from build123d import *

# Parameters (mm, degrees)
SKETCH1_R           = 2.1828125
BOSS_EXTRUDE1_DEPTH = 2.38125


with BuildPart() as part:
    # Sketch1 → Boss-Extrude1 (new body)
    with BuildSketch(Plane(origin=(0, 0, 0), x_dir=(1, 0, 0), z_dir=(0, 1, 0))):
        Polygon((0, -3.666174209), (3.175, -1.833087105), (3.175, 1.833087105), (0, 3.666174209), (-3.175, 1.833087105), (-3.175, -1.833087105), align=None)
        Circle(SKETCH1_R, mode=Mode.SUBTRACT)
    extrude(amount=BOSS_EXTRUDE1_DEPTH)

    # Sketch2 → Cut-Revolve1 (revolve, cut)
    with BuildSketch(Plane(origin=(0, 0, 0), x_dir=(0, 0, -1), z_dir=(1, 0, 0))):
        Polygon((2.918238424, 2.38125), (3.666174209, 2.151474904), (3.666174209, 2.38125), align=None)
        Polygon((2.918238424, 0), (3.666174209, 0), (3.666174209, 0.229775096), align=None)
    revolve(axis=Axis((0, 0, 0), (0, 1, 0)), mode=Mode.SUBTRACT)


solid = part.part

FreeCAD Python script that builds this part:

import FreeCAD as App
import Part
import Sketcher
Q = App.Units.Quantity


def add_polygon(sketch, points):
    """Adds a closed chain of lines whose ends are joined by coincident constraints."""
    first, n = sketch.GeometryCount, len(points)
    for a, b in zip(points, points[1:] + points[:1]):
        sketch.addGeometry(Part.LineSegment(App.Vector(*a, 0), App.Vector(*b, 0)), False)
    for i in range(n):
        sketch.addConstraint(Sketcher.Constraint("Coincident", first + i, 2, first + (i + 1) % n, 1))

doc = App.newDocument("Part")
params = doc.addObject("Spreadsheet::Sheet", "Params")
for row, (alias, value) in enumerate([
    ("sketch1_diameter", "0.171875 in"),
    ("pad1_length", "0.09375 in"),
    ("groove_angle", "360 deg"),
], start=1):
    params.set(f"A{row}", alias)
    params.set(f"B{row}", "=" + value)
    params.setAlias(f"B{row}", alias)

body = doc.addObject("PartDesign::Body", "Body")

sketch1 = doc.addObject("Sketcher::SketchObject", "Sketch")
body.addObject(sketch1)
sketch1.AttachmentSupport = (doc.XZ_Plane, [""])
sketch1.MapMode = "FlatFace"
add_polygon(sketch1, [(0, 3.666174), (3.175, 1.833087), (3.175, -1.833087), (0, -3.666174), (-3.175, -1.833087), (-3.175, 1.833087)])
sketch1.addGeometry(Part.Circle(App.Vector(0, 0, 0), App.Vector(0, 0, 1), 2.182812), False)
sketch1.addConstraint(Sketcher.Constraint("Vertical", 1))
sketch1.addConstraint(Sketcher.Constraint("Vertical", 4))
sketch1.addConstraint(Sketcher.Constraint("Coincident", 6, 3, -1, 1))
sketch1.addConstraint(Sketcher.Constraint("Symmetric", 0, 2, 3, 2, -1, 1))
sketch1.addConstraint(Sketcher.Constraint("Symmetric", 2, 2, 5, 2, -1, 1))
sketch1.addConstraint(Sketcher.Constraint("PointOnObject", 2, 2, -2))
sketch1.addConstraint(Sketcher.Constraint("Parallel", 2, 5))
sketch1.addConstraint(Sketcher.Constraint("Horizontal", 1, 2, 3, 2))
sketch1.addConstraint(Sketcher.Constraint("Diameter", 6, Q("0.171875 in")))
sketch1.addConstraint(Sketcher.Constraint("Angle", 0, Q("-30 deg")))
sketch1.addConstraint(Sketcher.Constraint("DistanceX", 3, 2, 1, 2, Q("0.25 in")))
sketch1.addConstraint(Sketcher.Constraint("DistanceY", 1, 2, 1, 1, Q("3.666174 mm")))
sketch1.setExpression("Constraints[14]", "Params.sketch1_diameter")
pad1 = doc.addObject("PartDesign::Pad", "Pad")
body.addObject(pad1)
pad1.Profile = sketch1
pad1.setExpression("Length", "Params.pad1_length")
pad1.Reversed = True

sketch2 = doc.addObject("Sketcher::SketchObject", "Sketch001")
body.addObject(sketch2)
sketch2.AttachmentSupport = (doc.YZ_Plane, [""])
sketch2.MapMode = "FlatFace"
add_polygon(sketch2, [(2.38125, -2.918238), (2.151475, -3.666174), (2.38125, -3.666174)])
add_polygon(sketch2, [(0, -2.918238), (0, -3.666174), (0.229775, -3.666174)])
sketch2.addConstraint(Sketcher.Constraint("Horizontal", 1))
sketch2.addConstraint(Sketcher.Constraint("Vertical", 2))
sketch2.addConstraint(Sketcher.Constraint("Vertical", 3))
sketch2.addConstraint(Sketcher.Constraint("Horizontal", 4))
sketch2.addConstraint(Sketcher.Constraint("PointOnObject", 3, 2, -2))
sketch2.addConstraint(Sketcher.Constraint("Horizontal", 1, 2, 3, 2))
sketch2.addConstraint(Sketcher.Constraint("Horizontal", 2, 2, 5, 2))
sketch2.addConstraint(Sketcher.Constraint("Equal", 1, 4))
sketch2.addConstraint(Sketcher.Constraint("DistanceX", -1, 1, 1, 2, Q("0.09375 in")))
sketch2.addConstraint(Sketcher.Constraint("DistanceX", 4, 2, 0, 2, Q("1.9217 mm")))
sketch2.addConstraint(Sketcher.Constraint("DistanceY", 2, 1, 2, 2, Q("0.747936 mm")))
sketch2.addConstraint(Sketcher.Constraint("DistanceY", 2, 2, -1, 1, Q("2.918238 mm")))
groove = doc.addObject("PartDesign::Groove", "Groove")
body.addObject(groove)
groove.Profile = sketch2
groove.ReferenceAxis = (sketch2, ["H_Axis"])
groove.setExpression("Angle", "Params.groove_angle")

doc.recompute()
